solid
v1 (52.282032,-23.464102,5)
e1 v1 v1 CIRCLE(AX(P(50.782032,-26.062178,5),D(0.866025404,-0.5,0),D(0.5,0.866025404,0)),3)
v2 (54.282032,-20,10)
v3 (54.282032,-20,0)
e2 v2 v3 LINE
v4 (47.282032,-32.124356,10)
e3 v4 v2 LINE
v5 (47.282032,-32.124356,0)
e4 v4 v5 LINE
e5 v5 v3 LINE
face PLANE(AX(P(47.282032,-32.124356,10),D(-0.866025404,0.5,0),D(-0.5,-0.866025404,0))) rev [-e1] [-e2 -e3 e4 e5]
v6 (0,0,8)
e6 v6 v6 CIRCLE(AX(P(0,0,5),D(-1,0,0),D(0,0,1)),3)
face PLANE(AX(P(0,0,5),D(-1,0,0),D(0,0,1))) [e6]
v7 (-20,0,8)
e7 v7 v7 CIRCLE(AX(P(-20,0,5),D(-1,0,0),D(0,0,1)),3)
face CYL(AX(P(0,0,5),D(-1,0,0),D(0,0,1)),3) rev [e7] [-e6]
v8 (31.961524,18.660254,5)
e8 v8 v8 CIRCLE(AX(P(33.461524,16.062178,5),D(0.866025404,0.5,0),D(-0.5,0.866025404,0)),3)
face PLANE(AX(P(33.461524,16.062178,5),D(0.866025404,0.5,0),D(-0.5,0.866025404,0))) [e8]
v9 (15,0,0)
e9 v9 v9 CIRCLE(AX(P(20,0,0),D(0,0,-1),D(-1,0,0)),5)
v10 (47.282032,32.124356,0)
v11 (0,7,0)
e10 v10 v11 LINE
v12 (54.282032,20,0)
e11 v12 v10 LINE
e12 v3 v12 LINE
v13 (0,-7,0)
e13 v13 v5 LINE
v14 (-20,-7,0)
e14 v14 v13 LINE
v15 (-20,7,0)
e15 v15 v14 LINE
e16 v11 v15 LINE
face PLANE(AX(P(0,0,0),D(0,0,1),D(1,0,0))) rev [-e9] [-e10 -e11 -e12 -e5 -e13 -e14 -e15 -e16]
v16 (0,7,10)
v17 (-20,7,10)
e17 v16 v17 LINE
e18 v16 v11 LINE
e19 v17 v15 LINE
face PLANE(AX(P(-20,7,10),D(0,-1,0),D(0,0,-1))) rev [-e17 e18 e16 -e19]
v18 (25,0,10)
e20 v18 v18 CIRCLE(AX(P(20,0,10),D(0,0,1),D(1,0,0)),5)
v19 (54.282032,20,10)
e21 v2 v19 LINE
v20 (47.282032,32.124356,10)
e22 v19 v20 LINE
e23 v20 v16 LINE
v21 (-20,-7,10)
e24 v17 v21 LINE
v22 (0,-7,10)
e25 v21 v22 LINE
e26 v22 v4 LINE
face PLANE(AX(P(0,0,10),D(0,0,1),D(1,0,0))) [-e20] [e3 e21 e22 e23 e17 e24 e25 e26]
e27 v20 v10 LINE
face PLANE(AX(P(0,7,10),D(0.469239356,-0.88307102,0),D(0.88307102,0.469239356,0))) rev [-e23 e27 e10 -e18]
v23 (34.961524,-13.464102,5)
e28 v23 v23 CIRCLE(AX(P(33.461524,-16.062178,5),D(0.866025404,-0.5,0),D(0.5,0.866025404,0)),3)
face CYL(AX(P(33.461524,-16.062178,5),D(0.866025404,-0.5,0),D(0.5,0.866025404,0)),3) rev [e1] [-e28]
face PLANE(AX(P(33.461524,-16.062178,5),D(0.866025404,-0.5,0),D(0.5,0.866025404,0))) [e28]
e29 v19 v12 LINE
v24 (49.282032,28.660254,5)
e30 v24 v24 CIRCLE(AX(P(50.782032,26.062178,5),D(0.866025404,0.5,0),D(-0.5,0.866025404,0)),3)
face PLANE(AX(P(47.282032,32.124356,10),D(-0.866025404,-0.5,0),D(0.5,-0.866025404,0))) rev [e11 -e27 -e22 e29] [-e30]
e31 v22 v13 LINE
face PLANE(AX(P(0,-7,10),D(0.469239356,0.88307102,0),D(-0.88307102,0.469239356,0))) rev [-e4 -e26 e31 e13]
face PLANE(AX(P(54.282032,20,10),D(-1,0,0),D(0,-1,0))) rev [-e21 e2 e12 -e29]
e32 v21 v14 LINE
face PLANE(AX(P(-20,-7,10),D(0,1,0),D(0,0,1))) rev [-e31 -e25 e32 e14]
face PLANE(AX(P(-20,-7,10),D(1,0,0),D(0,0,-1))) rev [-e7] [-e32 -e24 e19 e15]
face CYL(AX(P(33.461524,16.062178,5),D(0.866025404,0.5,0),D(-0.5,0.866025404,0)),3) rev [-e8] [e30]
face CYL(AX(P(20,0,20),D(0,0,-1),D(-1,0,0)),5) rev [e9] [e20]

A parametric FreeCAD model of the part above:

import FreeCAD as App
import Part
import Sketcher
Q = App.Units.Quantity


def add_polygon(sketch, points):
    """Adds a closed chain of lines whose ends are joined by coincident constraints."""
    first, n = sketch.GeometryCount, len(points)
    for a, b in zip(points, points[1:] + points[:1]):
        sketch.addGeometry(Part.LineSegment(App.Vector(*a, 0), App.Vector(*b, 0)), False)
    for i in range(n):
        sketch.addConstraint(Sketcher.Constraint("Coincident", first + i, 2, first + (i + 1) % n, 1))

doc = App.newDocument("Part")
params = doc.addObject("Spreadsheet::Sheet", "Params")
for row, (alias, value) in enumerate([
    ("sketch1_width", "20 mm"),
    ("sketch1_height", "14 mm"),
    ("sketch1_height2", "40 mm"),
    ("sketch1_length", "14 mm"),
    ("pad1_length", "10 mm"),
    ("sketch2_diameter", "6 mm"),
    ("pocket1_length", "20 mm"),
    ("sketch3_diameter", "6 mm"),
    ("pocket2_length", "20 mm"),
    ("sketch4_diameter", "6 mm"),
    ("pocket3_length", "20 mm"),
    ("sketch5_diameter", "10 mm"),
    ("pocket4_length", "20 mm"),
], start=1):
    params.set(f"A{row}", alias)
    params.set(f"B{row}", "=" + value)
    params.setAlias(f"B{row}", alias)

body = doc.addObject("PartDesign::Body", "Body")

# Sketch on XY plane
sketch1 = doc.addObject("Sketcher::SketchObject", "Sketch")
body.addObject(sketch1)
sketch1.AttachmentSupport = (doc.XY_Plane, [""])
sketch1.MapMode = "FlatFace"
add_polygon(sketch1, [(-20, 7), (-20, -7), (0, -7), (47, -32), (54, -20), (54, 20), (47, 32), (0, 7)])  # lines 0-7
sketch1.addConstraint([
    Sketcher.Constraint("Vertical", 0),
    Sketcher.Constraint("Horizontal", 1),
    Sketcher.Constraint("Vertical", 4),
    Sketcher.Constraint("Horizontal", 7),
    Sketcher.Constraint("Symmetric", 1, 2, 6, 2, -1, 1),
    Sketcher.Constraint("Symmetric", 2, 2, 5, 2, -1),
    Sketcher.Constraint("PointOnObject", 1, 2, -2),
    Sketcher.Constraint("Equal", 3, 5),
    Sketcher.Constraint("DistanceX", 1, 1, 1, 2, Q("20 mm")),
    Sketcher.Constraint("DistanceY", 0, 2, 0, 1, Q("14 mm")),
    Sketcher.Constraint("DistanceY", 4, 1, 4, 2, Q("40 mm")),
    Sketcher.Constraint("Angle", 3, Q("60 deg")),
    Sketcher.Constraint("Distance", 3, Q("14 mm")),
    Sketcher.Constraint("Distance", 2, Q("53.542729 mm")),
])
sketch1.setExpression("Constraints[16]", "Params.sketch1_width")
sketch1.setExpression("Constraints[17]", "Params.sketch1_height")
sketch1.setExpression("Constraints[18]", "Params.sketch1_height2")
sketch1.setExpression("Constraints[20]", "Params.sketch1_length")
pad1 = doc.addObject("PartDesign::Pad", "Pad")
body.addObject(pad1)
pad1.Profile = sketch1
pad1.setExpression("Length", "Params.pad1_length")

# Sketch on YZ plane
sketch2 = doc.addObject("Sketcher::SketchObject", "Sketch001")
body.addObject(sketch2)
sketch2.AttachmentSupport = (doc.YZ_Plane, [""])
sketch2.MapMode = "FlatFace"
sketch2.AttachmentOffset = App.Placement(App.Vector(0, 0, -20), App.Rotation())
sketch2.addGeometry(Part.Circle(App.Vector(0, 5, 0), App.Vector(0, 0, 1), 3), False)
sketch2.addConstraint([
    Sketcher.Constraint("PointOnObject", 0, 3, -2),
    Sketcher.Constraint("Diameter", 0, Q("6 mm")),
    Sketcher.Constraint("DistanceY", -1, 1, 0, 3, Q("5 mm")),
])
sketch2.setExpression("Constraints[1]", "Params.sketch2_diameter")
pocket1 = doc.addObject("PartDesign::Pocket", "Pocket")
body.addObject(pocket1)
pocket1.Profile = sketch2
pocket1.setExpression("Length", "Params.pocket1_length")
pocket1.Reversed = True

# Sketch on an angled plane
sketch3 = doc.addObject("Sketcher::SketchObject", "Sketch002")
body.addObject(sketch3)
sketch3.Placement = App.Placement(App.Vector(49.371778, 28.504809, 0), App.Rotation(App.Vector(0.5, -0.866025404, 0), App.Vector(0, 0, -1), App.Vector(0.866025404, 0.5, 0), "ZXY"))
sketch3.addGeometry(Part.Circle(App.Vector(2.8, -5, 0), App.Vector(0, 0, 1), 3), False)
sketch3.addConstraint([
    Sketcher.Constraint("Diameter", 0, Q("6 mm")),
    Sketcher.Constraint("DistanceY", 0, 3, -1, 1, Q("5 mm")),
    Sketcher.Constraint("DistanceX", -1, 1, 0, 3, Q("2.820508 mm")),
])
sketch3.setExpression("Constraints[0]", "Params.sketch3_diameter")
pocket2 = doc.addObject("PartDesign::Pocket", "Pocket001")
body.addObject(pocket2)
pocket2.Profile = sketch3
pocket2.setExpression("Length", "Params.pocket2_length")

# Sketch on an angled plane
sketch4 = doc.addObject("Sketcher::SketchObject", "Sketch003")
body.addObject(sketch4)
sketch4.Placement = App.Placement(App.Vector(49.371778, -28.504809, 0), App.Rotation(App.Vector(-0.5, -0.866025404, 0), App.Vector(0, 0, -1), App.Vector(0.866025404, -0.5, 0), "ZXY"))
sketch4.addGeometry(Part.Circle(App.Vector(-2.8, -5, 0), App.Vector(0, 0, 1), 3), False)
sketch4.addConstraint([
    Sketcher.Constraint("Diameter", 0, Q("6 mm")),
    Sketcher.Constraint("DistanceY", 0, 3, -1, 1, Q("5 mm")),
    Sketcher.Constraint("DistanceX", 0, 3, -1, 1, Q("2.820508 mm")),
])
sketch4.setExpression("Constraints[0]", "Params.sketch4_diameter")
pocket3 = doc.addObject("PartDesign::Pocket", "Pocket002")
body.addObject(pocket3)
pocket3.Profile = sketch4
pocket3.setExpression("Length", "Params.pocket3_length")

# Sketch on XY plane
sketch5 = doc.addObject("Sketcher::SketchObject", "Sketch004")
body.addObject(sketch5)
sketch5.AttachmentSupport = (doc.XY_Plane, [""])
sketch5.MapMode = "FlatFace"
sketch5.addGeometry(Part.Circle(App.Vector(20, 0, 0), App.Vector(0, 0, 1), 5), False)
sketch5.addConstraint([
    Sketcher.Constraint("PointOnObject", 0, 3, -1),
    Sketcher.Constraint("Diameter", 0, Q("10 mm")),
    Sketcher.Constraint("DistanceX", -1, 1, 0, 3, Q("20 mm")),
])
sketch5.setExpression("Constraints[1]", "Params.sketch5_diameter")
pocket4 = doc.addObject("PartDesign::Pocket", "Pocket003")
body.addObject(pocket4)
pocket4.Profile = sketch5
pocket4.setExpression("Length", "Params.pocket4_length")
pocket4.Reversed = True

doc.recompute()
